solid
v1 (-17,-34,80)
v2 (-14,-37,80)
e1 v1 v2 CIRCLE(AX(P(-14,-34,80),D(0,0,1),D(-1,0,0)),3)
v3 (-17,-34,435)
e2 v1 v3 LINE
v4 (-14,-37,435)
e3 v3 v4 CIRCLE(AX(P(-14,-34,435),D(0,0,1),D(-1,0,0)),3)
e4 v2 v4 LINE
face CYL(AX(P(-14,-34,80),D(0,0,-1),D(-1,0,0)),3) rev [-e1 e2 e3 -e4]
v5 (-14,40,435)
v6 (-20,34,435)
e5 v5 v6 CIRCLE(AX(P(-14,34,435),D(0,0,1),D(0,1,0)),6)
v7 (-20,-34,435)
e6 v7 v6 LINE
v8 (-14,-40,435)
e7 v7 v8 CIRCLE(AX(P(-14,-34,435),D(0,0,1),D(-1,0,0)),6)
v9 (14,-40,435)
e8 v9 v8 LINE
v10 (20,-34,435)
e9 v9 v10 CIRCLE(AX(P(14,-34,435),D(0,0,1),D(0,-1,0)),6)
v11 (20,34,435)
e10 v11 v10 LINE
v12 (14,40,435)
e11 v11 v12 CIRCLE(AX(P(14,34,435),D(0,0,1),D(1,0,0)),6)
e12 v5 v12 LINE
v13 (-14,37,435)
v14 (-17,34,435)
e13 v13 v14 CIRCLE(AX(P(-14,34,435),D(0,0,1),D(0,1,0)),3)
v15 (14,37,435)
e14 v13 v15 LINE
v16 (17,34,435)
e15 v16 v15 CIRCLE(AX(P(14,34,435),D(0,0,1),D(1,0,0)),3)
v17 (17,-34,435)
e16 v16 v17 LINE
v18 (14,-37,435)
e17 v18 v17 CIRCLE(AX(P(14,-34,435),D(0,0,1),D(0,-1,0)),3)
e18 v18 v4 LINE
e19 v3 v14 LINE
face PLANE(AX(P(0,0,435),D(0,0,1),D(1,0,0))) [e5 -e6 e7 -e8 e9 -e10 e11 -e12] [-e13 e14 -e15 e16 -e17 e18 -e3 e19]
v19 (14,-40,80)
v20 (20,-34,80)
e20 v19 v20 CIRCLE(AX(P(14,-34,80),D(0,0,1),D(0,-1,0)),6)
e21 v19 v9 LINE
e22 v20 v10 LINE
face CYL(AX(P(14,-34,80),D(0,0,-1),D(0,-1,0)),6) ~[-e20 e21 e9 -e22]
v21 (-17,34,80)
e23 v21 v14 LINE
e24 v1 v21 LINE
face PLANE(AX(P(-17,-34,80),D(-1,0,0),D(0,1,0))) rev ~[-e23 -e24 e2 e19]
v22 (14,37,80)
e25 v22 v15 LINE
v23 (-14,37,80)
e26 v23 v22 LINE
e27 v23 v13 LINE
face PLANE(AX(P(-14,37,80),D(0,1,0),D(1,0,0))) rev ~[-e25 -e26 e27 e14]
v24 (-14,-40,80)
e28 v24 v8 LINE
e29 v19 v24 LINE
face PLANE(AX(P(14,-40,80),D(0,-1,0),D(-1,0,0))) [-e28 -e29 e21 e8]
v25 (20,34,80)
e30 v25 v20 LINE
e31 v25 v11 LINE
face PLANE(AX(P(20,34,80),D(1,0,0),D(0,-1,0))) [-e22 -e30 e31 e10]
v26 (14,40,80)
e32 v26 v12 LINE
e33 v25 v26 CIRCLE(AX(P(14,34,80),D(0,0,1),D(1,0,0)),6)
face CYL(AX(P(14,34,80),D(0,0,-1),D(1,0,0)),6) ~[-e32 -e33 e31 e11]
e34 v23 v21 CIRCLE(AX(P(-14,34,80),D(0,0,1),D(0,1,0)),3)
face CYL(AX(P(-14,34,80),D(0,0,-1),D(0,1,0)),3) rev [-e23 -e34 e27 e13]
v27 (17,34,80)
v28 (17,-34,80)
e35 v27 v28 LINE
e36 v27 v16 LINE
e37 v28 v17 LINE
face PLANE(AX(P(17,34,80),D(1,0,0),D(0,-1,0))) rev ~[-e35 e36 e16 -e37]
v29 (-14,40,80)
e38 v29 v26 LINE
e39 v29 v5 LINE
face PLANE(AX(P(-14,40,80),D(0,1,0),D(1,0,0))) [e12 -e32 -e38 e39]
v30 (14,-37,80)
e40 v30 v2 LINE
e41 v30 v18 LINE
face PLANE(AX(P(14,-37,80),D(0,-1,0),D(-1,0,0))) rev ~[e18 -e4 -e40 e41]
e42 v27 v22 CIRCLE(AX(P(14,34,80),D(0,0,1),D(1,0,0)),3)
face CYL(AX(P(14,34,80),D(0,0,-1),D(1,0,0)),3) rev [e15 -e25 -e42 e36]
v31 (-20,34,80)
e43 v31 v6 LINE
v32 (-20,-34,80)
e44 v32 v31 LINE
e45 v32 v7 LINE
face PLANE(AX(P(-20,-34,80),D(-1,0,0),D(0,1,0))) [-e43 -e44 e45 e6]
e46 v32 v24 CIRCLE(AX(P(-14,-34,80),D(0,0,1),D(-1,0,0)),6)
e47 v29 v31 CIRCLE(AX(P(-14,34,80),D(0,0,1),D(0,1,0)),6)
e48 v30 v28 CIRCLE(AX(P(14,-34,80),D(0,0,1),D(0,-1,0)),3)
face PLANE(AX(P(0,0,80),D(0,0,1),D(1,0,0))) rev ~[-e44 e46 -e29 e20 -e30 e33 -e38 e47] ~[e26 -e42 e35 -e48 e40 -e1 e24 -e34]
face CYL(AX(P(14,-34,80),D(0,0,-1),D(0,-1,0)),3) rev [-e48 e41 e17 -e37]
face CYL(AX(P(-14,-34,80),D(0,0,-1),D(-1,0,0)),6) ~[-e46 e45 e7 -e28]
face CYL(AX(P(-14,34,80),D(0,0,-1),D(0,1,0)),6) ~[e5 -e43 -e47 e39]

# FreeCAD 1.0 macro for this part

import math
import FreeCAD as App
import Part
import Sketcher
Q = App.Units.Quantity

doc = App.newDocument("Part")
body = doc.addObject("PartDesign::Body", "Body")

sketch1 = body.newObject("Sketcher::SketchObject", "Sketch")
sketch1.AttachmentSupport = (doc.getObject("XY_Plane"), [""])
sketch1.MapMode = "FlatFace"
sketch1.AttachmentOffset = App.Placement(App.Vector(0, 0, 80), App.Rotation())
sketch1.addGeometry([
    Part.LineSegment(App.Vector(-20, 34, 0), App.Vector(-20, -34, 0)),
    Part.ArcOfCircle(Part.Circle(App.Vector(-14, -34, 0), App.Vector(0, 0, 1), 6), math.radians(180), math.radians(270)),
    Part.LineSegment(App.Vector(-14, -40, 0), App.Vector(14, -40, 0)),
    Part.ArcOfCircle(Part.Circle(App.Vector(14, -34, 0), App.Vector(0, 0, 1), 6), math.radians(-90), math.radians(0)),
    Part.LineSegment(App.Vector(20, -34, 0), App.Vector(20, 34, 0)),
    Part.ArcOfCircle(Part.Circle(App.Vector(14, 34, 0), App.Vector(0, 0, 1), 6), math.radians(0), math.radians(90)),
    Part.LineSegment(App.Vector(14, 40, 0), App.Vector(-14, 40, 0)),
    Part.ArcOfCircle(Part.Circle(App.Vector(-14, 34, 0), App.Vector(0, 0, 1), 6), math.radians(90), math.radians(180)),
    Part.ArcOfCircle(Part.Circle(App.Vector(-14, 34, 0), App.Vector(0, 0, 1), 3), math.radians(90), math.radians(180)),
    Part.LineSegment(App.Vector(-14, 37, 0), App.Vector(14, 37, 0)),
    Part.ArcOfCircle(Part.Circle(App.Vector(14, 34, 0), App.Vector(0, 0, 1), 3), math.radians(0), math.radians(90)),
    Part.LineSegment(App.Vector(17, 34, 0), App.Vector(17, -34, 0)),
    Part.ArcOfCircle(Part.Circle(App.Vector(14, -34, 0), App.Vector(0, 0, 1), 3), math.radians(-90), math.radians(0)),
    Part.LineSegment(App.Vector(14, -37, 0), App.Vector(-14, -37, 0)),
    Part.ArcOfCircle(Part.Circle(App.Vector(-14, -34, 0), App.Vector(0, 0, 1), 3), math.radians(180), math.radians(270)),
    Part.LineSegment(App.Vector(-17, -34, 0), App.Vector(-17, 34, 0)),
], False)
sketch1.addConstraint([
    Sketcher.Constraint("Tangent", 0, 2, 1, 1),
    Sketcher.Constraint("Tangent", 1, 2, 2, 1),
    Sketcher.Constraint("Tangent", 2, 2, 3, 1),
    Sketcher.Constraint("Tangent", 3, 2, 4, 1),
    Sketcher.Constraint("Tangent", 4, 2, 5, 1),
    Sketcher.Constraint("Tangent", 5, 2, 6, 1),
    Sketcher.Constraint("Tangent", 6, 2, 7, 1),
    Sketcher.Constraint("Tangent", 7, 2, 0, 1),
    Sketcher.Constraint("Tangent", 8, 1, 9, 1),
    Sketcher.Constraint("Tangent", 9, 2, 10, 2),
    Sketcher.Constraint("Tangent", 10, 1, 11, 1),
    Sketcher.Constraint("Tangent", 11, 2, 12, 2),
    Sketcher.Constraint("Tangent", 12, 1, 13, 1),
    Sketcher.Constraint("Tangent", 13, 2, 14, 2),
    Sketcher.Constraint("Tangent", 14, 1, 15, 1),
    Sketcher.Constraint("Tangent", 15, 2, 8, 2),
    Sketcher.Constraint("Vertical", 0),
    Sketcher.Constraint("Horizontal", 2),
    Sketcher.Constraint("Vertical", 4),
    Sketcher.Constraint("Horizontal", 6),
    Sketcher.Constraint("Horizontal", 9),
    Sketcher.Constraint("Vertical", 11),
    Sketcher.Constraint("Horizontal", 13),
    Sketcher.Constraint("Vertical", 15),
    Sketcher.Constraint("Coincident", 8, 3, 7, 3),
    Sketcher.Constraint("Coincident", 10, 3, 5, 3),
    Sketcher.Constraint("Coincident", 12, 3, 3, 3),
    Sketcher.Constraint("Equal", 1, 3),
    Sketcher.Constraint("Equal", 3, 5),
    Sketcher.Constraint("Equal", 5, 7),
    Sketcher.Constraint("Equal", 12, 14),
    Sketcher.Constraint("Symmetric", 1, 3, 5, 3, -1, 1),
    Sketcher.Constraint("Radius", 1, Q("6 mm")),
    Sketcher.Constraint("Radius", 8, Q("3 mm")),
    Sketcher.Constraint("DistanceX", 0, 2, -1, 1, Q("20 mm")),
    Sketcher.Constraint("DistanceY", 1, 2, -1, 1, Q("40 mm")),
])
pad1 = body.newObject("PartDesign::Pad", "Pad")
pad1.Profile = sketch1
pad1.Length = 355

doc.recompute()
